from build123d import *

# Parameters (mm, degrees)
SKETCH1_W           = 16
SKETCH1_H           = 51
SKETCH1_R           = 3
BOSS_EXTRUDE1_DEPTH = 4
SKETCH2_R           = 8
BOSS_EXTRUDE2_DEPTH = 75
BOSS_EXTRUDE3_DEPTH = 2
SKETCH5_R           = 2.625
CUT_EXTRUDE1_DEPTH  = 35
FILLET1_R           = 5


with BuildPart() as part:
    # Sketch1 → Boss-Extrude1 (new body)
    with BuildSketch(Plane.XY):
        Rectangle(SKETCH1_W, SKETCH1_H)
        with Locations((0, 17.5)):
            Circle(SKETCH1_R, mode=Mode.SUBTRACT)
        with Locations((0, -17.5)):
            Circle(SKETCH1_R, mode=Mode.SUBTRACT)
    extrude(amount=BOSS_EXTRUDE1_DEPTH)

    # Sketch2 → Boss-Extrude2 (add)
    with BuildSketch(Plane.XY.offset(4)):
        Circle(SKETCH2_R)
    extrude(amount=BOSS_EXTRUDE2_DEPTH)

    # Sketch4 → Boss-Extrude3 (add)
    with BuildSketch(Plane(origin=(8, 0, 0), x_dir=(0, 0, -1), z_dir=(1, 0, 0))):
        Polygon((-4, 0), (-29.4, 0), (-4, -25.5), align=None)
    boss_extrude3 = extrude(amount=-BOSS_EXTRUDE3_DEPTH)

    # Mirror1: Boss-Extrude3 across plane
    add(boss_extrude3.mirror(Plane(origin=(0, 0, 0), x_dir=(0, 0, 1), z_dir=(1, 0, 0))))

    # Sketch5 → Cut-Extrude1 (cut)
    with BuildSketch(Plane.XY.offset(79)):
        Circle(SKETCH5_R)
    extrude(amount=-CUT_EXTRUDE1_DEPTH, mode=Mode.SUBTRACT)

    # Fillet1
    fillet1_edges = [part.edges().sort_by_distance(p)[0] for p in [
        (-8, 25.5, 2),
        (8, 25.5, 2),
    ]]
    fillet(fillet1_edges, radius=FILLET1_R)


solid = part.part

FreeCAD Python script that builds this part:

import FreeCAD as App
import Part
import Sketcher
Q = App.Units.Quantity


def edges_at(feature, points):
    """Names of the edges that pass closest to the given points."""
    edges = feature.Shape.Edges
    near = lambda p: min(range(len(edges)), key=lambda i: edges[i].distToShape(Part.Vertex(*p))[0])
    return sorted({f"Edge{near(p) + 1}" for p in points})


def add_polygon(sketch, points):
    """Adds a closed chain of lines whose ends are joined by coincident constraints."""
    first, n = sketch.GeometryCount, len(points)
    for a, b in zip(points, points[1:] + points[:1]):
        sketch.addGeometry(Part.LineSegment(App.Vector(*a, 0), App.Vector(*b, 0)), False)
    for i in range(n):
        sketch.addConstraint(Sketcher.Constraint("Coincident", first + i, 2, first + (i + 1) % n, 1))

doc = App.newDocument("Part")
body = doc.addObject("PartDesign::Body", "Body")

# Sketch on XY plane
sketch1 = body.newObject("Sketcher::SketchObject", "Sketch")
sketch1.AttachmentSupport = (doc.getObject("XY_Plane"), [""])
sketch1.MapMode = "FlatFace"
add_polygon(sketch1, [(-8, 25.5), (-8, -25.5), (8, -25.5), (8, 25.5)])  # lines 0-3
sketch1.addGeometry(Part.Circle(App.Vector(0, -17.5, 0), App.Vector(0, 0, 1), 3), False)  # 4
sketch1.addGeometry(Part.Circle(App.Vector(0, 17.5, 0), App.Vector(0, 0, 1), 3), False)  # 5
sketch1.addConstraint([
    Sketcher.Constraint("Vertical", 0),
    Sketcher.Constraint("Horizontal", 1),
    Sketcher.Constraint("Vertical", 2),
    Sketcher.Constraint("Horizontal", 3),
    Sketcher.Constraint("Equal", 4, 5),
    Sketcher.Constraint("Symmetric", 4, 3, 5, 3, -1, 1),
    Sketcher.Constraint("Symmetric", 0, 2, 2, 2, -1, 1),
    Sketcher.Constraint("PointOnObject", 4, 3, -2),
    Sketcher.Constraint("Diameter", 4, Q("6 mm")),
    Sketcher.Constraint("DistanceX", 1, 1, 1, 2, Q("16 mm")),
    Sketcher.Constraint("DistanceY", 0, 2, 0, 1, Q("51 mm")),
    Sketcher.Constraint("DistanceY", 4, 3, 5, 3, Q("35 mm")),
])
pad1 = body.newObject("PartDesign::Pad", "Pad")
pad1.Profile = sketch1
pad1.Length = 4

# Sketch on XY plane
sketch2 = body.newObject("Sketcher::SketchObject", "Sketch001")
sketch2.AttachmentSupport = (doc.getObject("XY_Plane"), [""])
sketch2.MapMode = "FlatFace"
sketch2.AttachmentOffset = App.Placement(App.Vector(0, 0, 4), App.Rotation())
sketch2.addGeometry(Part.Circle(App.Vector(0, 0, 0), App.Vector(0, 0, 1), 8), False)
sketch2.addConstraint([
    Sketcher.Constraint("Coincident", 0, 3, -1, 1),
    Sketcher.Constraint("Diameter", 0, Q("16 mm")),
])
pad2 = body.newObject("PartDesign::Pad", "Pad001")
pad2.Profile = sketch2
pad2.Length = 75

# Sketch on YZ plane
sketch3 = body.newObject("Sketcher::SketchObject", "Sketch002")
sketch3.AttachmentSupport = (doc.getObject("YZ_Plane"), [""])
sketch3.MapMode = "FlatFace"
sketch3.AttachmentOffset = App.Placement(App.Vector(0, 0, 8), App.Rotation())
add_polygon(sketch3, [(0, 4), (0, 29), (-26, 4)])  # lines 0-2
sketch3.addConstraint([
    Sketcher.Constraint("Vertical", 0),
    Sketcher.Constraint("Horizontal", 2),
    Sketcher.Constraint("PointOnObject", 0, 2, -2),
    Sketcher.Constraint("DistanceX", 2, 1, 2, 2, Q("25.5 mm")),
    Sketcher.Constraint("DistanceY", 0, 1, 0, 2, Q("25.4 mm")),
    Sketcher.Constraint("DistanceY", -1, 1, 1, 2, Q("4 mm")),
])
pad3 = body.newObject("PartDesign::Pad", "Pad002")
pad3.Profile = sketch3
pad3.Length = 2
pad3.Reversed = True
doc.recompute()

mirrored = body.newObject("PartDesign::Mirrored", "Mirrored")
mirrored.Originals = [pad3]
mirrored.MirrorPlane = (doc.getObject("YZ_Plane"), [""])
body.Tip = mirrored

# Sketch on XY plane
sketch4 = body.newObject("Sketcher::SketchObject", "Sketch003")
sketch4.AttachmentSupport = (doc.getObject("XY_Plane"), [""])
sketch4.MapMode = "FlatFace"
sketch4.AttachmentOffset = App.Placement(App.Vector(0, 0, 79), App.Rotation())
sketch4.addGeometry(Part.Circle(App.Vector(0, 0, 0), App.Vector(0, 0, 1), 2.6), False)
sketch4.addConstraint([
    Sketcher.Constraint("Coincident", 0, 3, -1, 1),
    Sketcher.Constraint("Diameter", 0, Q("5.25 mm")),
])
pocket1 = body.newObject("PartDesign::Pocket", "Pocket")
pocket1.Profile = sketch4
pocket1.Length = 35
doc.recompute()

fillet = body.newObject("PartDesign::Fillet", "Fillet")
fillet.Base = (pocket1, edges_at(pocket1, [(-8, 25.5, 2), (8, 25.5, 2)]))
fillet.Radius = 5

doc.recompute()
